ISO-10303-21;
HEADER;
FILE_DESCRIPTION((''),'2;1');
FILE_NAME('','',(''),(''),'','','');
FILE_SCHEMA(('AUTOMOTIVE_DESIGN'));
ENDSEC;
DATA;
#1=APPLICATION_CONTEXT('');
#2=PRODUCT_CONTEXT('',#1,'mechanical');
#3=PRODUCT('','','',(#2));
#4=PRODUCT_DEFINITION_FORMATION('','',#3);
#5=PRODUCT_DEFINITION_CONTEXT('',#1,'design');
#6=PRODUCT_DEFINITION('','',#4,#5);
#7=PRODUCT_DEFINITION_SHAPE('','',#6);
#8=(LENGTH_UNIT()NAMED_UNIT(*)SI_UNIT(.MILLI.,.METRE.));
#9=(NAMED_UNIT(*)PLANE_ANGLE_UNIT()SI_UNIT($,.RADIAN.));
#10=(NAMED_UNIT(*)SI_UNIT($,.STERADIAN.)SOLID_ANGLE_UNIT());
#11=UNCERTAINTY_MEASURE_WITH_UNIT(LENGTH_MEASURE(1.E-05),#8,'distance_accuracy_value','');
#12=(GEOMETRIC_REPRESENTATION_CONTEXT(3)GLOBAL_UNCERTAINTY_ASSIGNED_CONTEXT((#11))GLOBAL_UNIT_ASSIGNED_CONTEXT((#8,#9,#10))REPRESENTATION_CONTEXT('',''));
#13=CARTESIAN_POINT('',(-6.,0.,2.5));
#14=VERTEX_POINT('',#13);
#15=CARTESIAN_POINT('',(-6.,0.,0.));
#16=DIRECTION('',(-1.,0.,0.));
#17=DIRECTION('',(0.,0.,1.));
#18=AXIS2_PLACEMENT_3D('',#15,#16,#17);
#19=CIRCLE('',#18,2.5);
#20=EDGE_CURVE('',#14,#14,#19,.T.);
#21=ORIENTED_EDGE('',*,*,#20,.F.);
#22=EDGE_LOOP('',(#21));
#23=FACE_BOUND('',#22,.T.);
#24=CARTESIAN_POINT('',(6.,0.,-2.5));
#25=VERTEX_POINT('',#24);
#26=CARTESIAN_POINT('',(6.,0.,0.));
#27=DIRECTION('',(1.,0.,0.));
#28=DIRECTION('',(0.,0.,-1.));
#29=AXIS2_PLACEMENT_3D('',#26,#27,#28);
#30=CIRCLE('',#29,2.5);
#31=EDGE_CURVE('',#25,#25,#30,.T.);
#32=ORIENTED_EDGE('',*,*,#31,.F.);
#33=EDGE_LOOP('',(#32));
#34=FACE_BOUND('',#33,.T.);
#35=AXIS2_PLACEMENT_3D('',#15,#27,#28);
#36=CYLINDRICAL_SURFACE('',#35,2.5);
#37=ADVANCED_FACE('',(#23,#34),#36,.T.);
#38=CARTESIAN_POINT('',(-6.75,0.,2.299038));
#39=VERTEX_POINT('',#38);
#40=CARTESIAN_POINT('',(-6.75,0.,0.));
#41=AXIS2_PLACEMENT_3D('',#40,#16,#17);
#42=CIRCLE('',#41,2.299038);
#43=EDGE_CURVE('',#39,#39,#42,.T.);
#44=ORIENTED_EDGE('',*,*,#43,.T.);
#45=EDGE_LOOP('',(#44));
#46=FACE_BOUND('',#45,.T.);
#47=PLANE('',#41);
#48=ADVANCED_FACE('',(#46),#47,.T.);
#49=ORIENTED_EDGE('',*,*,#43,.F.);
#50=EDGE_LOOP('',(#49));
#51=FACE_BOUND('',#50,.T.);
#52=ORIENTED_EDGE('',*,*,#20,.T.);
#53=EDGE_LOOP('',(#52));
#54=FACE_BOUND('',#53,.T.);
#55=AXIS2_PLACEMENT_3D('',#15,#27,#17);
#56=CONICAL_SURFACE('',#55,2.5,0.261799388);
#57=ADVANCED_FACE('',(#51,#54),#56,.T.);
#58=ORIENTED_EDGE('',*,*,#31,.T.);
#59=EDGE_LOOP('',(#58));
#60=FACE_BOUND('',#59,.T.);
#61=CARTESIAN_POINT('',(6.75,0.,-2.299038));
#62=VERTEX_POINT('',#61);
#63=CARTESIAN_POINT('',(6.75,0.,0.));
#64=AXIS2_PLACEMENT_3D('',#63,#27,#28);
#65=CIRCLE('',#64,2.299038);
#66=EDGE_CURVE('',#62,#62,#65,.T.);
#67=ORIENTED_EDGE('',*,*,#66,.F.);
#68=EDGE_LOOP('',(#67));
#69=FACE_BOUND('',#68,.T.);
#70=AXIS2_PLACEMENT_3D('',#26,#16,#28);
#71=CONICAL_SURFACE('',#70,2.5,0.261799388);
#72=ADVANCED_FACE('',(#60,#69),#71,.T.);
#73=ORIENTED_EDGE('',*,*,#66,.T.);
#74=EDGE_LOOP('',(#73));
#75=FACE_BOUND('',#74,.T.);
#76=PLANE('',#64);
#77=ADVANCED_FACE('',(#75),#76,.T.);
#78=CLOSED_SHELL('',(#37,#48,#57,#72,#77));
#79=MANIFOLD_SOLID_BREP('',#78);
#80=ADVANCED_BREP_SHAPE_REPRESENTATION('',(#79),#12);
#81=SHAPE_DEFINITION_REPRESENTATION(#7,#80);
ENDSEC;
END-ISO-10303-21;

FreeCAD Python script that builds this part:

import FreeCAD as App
import Part
import Sketcher

V = App.Vector
Q = App.Units.Quantity

doc = App.newDocument("Part")
body = doc.addObject("PartDesign::Body", "Body")

# Sketch on YZ plane
sketch1 = body.newObject("Sketcher::SketchObject", "Sketch")
sketch1.AttachmentSupport = (doc.getObject("YZ_Plane"), [""])
sketch1.MapMode = "FlatFace"
sketch1.addGeometry(Part.Circle(V(0, 0, 0), V(0, 0, 1), 2.5), False)
sketch1.addConstraint(Sketcher.Constraint("Coincident", 0, 3, -1, 1))
sketch1.addConstraint(Sketcher.Constraint("Diameter", 0, Q("5 mm")))
pad1 = body.newObject("PartDesign::Pad", "Pad")
pad1.Profile = sketch1
pad1.Type = "TwoLengths"
pad1.Length = 6
pad1.Length2 = 6

# Sketch on YZ plane
sketch2 = body.newObject("Sketcher::SketchObject", "Sketch001")
sketch2.AttachmentSupport = (doc.getObject("YZ_Plane"), [""])
sketch2.MapMode = "FlatFace"
sketch2.AttachmentOffset = App.Placement(V(0, 0, 6), App.Rotation())
sketch2.addGeometry(Part.Circle(V(0, 0, 0), V(0, 0, 1), 2.5), False)
sketch2.addConstraint(Sketcher.Constraint("Coincident", 0, 3, -1, 1))
sketch2.addConstraint(Sketcher.Constraint("Diameter", 0, Q("5 mm")))
pad2 = body.newObject("PartDesign::Pad", "Pad001")
pad2.Profile = sketch2
pad2.Length = 0.75
pad2.TaperAngle = -15

# Sketch on YZ plane
sketch3 = body.newObject("Sketcher::SketchObject", "Sketch002")
sketch3.AttachmentSupport = (doc.getObject("YZ_Plane"), [""])
sketch3.MapMode = "FlatFace"
sketch3.AttachmentOffset = App.Placement(V(0, 0, -6), App.Rotation())
sketch3.addGeometry(Part.Circle(V(0, 0, 0), V(0, 0, 1), 2.5), False)
sketch3.addConstraint(Sketcher.Constraint("Coincident", 0, 3, -1, 1))
sketch3.addConstraint(Sketcher.Constraint("Diameter", 0, Q("5 mm")))
pad3 = body.newObject("PartDesign::Pad", "Pad002")
pad3.Profile = sketch3
pad3.Length = 0.75
pad3.Reversed = True
pad3.TaperAngle = -15

doc.recompute()
